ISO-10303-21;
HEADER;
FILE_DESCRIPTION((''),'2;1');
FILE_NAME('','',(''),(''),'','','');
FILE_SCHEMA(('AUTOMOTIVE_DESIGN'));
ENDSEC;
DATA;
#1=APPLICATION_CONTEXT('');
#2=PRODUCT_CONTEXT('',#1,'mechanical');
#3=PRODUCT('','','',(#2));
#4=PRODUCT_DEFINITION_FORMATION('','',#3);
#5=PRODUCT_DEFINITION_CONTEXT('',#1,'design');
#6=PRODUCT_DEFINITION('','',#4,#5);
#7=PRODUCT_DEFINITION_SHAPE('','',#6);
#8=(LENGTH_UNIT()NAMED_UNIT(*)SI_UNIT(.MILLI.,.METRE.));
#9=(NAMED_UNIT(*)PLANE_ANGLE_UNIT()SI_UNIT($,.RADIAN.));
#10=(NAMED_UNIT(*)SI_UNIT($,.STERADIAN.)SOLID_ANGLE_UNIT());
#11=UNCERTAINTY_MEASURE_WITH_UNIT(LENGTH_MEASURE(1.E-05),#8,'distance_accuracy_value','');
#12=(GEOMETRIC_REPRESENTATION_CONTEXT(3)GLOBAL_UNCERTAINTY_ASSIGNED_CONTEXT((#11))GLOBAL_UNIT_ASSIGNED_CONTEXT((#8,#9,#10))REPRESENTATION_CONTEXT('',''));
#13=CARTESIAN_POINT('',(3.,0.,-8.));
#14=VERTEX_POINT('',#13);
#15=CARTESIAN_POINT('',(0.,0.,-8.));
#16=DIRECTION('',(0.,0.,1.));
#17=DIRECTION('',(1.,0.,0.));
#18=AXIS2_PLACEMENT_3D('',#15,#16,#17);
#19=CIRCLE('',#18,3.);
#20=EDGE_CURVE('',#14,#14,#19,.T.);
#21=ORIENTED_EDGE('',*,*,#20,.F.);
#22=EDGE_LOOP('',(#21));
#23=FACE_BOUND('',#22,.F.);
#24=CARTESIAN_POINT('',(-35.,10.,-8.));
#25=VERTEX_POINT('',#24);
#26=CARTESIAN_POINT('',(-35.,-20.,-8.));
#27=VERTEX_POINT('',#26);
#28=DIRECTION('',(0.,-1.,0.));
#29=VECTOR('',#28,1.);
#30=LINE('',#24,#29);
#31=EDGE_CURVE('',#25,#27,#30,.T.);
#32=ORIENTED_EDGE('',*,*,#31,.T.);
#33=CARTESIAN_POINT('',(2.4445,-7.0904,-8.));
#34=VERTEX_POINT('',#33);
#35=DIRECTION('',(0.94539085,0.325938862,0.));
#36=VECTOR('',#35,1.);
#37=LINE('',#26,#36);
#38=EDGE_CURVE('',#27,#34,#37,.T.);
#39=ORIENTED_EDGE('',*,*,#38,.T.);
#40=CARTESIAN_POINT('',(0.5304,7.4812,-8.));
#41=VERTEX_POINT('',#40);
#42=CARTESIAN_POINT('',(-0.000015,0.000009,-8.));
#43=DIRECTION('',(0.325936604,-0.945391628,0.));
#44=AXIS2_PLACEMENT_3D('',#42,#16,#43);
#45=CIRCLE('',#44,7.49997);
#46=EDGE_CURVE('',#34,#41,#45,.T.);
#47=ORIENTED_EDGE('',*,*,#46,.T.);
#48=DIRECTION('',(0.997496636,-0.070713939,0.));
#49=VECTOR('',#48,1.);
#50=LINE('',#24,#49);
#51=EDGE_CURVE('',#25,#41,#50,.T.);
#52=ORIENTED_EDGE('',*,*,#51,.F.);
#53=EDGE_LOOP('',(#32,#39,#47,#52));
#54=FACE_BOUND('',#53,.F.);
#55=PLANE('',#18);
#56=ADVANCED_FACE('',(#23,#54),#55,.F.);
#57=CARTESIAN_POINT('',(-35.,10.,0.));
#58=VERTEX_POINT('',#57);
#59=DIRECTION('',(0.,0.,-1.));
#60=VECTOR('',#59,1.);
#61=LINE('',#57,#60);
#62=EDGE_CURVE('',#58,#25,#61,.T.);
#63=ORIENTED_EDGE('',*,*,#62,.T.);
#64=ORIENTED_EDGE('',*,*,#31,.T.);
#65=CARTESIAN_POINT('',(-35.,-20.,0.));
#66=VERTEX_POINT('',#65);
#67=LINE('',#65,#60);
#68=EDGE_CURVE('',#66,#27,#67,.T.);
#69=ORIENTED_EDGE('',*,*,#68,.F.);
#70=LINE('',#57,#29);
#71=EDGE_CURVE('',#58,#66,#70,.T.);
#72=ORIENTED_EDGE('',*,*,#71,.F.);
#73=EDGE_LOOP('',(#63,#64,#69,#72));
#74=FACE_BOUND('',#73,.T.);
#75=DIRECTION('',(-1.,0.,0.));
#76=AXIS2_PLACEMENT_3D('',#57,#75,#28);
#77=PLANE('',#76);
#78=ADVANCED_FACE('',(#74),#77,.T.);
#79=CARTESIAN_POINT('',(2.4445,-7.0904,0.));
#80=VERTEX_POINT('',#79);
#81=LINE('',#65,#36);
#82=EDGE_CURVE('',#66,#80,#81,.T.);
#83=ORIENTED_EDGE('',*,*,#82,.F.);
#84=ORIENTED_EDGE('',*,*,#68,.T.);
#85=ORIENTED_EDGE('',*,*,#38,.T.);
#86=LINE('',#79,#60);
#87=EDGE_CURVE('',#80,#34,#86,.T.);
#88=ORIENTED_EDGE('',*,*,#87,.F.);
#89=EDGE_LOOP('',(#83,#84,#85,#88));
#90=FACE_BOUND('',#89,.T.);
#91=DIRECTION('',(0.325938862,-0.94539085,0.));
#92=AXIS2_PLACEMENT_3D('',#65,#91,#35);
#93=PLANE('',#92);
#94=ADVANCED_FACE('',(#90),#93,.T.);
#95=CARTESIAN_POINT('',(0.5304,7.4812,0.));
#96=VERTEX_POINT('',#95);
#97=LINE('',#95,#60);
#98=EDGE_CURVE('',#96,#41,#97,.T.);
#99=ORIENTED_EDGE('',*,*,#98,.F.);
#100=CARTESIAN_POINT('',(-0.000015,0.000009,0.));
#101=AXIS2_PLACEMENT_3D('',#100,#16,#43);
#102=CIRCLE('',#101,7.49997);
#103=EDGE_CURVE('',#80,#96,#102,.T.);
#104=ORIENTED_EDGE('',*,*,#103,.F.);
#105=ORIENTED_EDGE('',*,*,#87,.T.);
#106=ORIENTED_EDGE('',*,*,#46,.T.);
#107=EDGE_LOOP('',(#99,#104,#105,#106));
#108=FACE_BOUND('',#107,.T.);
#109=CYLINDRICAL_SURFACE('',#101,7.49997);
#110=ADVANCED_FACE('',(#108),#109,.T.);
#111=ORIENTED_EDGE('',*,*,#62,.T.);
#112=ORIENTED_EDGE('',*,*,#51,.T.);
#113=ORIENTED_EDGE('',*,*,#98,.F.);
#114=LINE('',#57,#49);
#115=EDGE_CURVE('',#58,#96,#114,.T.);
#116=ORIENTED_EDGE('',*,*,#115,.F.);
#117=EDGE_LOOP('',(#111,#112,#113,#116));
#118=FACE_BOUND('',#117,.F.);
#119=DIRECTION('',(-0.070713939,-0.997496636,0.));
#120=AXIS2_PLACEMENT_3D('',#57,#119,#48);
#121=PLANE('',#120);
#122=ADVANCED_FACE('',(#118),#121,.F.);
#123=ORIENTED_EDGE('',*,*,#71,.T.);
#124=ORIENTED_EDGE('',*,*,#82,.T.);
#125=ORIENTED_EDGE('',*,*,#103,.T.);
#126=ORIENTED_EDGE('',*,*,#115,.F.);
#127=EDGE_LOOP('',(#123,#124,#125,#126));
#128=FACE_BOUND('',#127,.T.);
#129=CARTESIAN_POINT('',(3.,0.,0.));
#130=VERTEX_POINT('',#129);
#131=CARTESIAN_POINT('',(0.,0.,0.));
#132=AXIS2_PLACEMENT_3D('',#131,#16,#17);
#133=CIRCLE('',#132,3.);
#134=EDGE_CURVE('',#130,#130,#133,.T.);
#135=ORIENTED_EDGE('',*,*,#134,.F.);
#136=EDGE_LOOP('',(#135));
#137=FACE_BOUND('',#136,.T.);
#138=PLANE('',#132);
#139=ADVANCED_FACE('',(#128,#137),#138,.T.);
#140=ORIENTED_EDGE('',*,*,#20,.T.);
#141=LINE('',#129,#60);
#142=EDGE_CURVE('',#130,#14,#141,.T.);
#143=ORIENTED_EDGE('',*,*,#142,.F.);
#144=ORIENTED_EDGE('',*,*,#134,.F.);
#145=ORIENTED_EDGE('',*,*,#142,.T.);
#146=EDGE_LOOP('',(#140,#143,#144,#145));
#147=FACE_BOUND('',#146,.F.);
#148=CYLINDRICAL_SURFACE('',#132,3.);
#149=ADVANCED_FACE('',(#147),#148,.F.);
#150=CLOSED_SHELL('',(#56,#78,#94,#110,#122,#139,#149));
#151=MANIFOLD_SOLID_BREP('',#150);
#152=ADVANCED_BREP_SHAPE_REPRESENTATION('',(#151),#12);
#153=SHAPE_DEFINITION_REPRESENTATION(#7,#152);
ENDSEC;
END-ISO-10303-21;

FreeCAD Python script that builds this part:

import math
import FreeCAD as App
import Part
import Sketcher

V = App.Vector
Q = App.Units.Quantity

doc = App.newDocument("Part")
body = doc.addObject("PartDesign::Body", "Body")

sketch1 = body.newObject("Sketcher::SketchObject", "Sketch")
sketch1.AttachmentSupport = (doc.getObject("XY_Plane"), [""])
sketch1.MapMode = "FlatFace"
sketch1.addGeometry(Part.LineSegment(V(-35, -20, 0), V(2.4, -7.1, 0)), False)
sketch1.addGeometry(Part.ArcOfCircle(Part.Circle(V(0, 0, 0), V(0, 0, 1), 7.5), math.radians(-71), math.radians(86)), False)
sketch1.addGeometry(Part.LineSegment(V(0.5, 7.5, 0), V(-35, 10, 0)), False)
sketch1.addGeometry(Part.LineSegment(V(-35, 10, 0), V(-35, -20, 0)), False)
sketch1.addGeometry(Part.Circle(V(0, 0, 0), V(0, 0, 1), 3), False)
sketch1.addConstraint(Sketcher.Constraint("Tangent", 0, 2, 1, 1))
sketch1.addConstraint(Sketcher.Constraint("Tangent", 1, 2, 2, 1))
sketch1.addConstraint(Sketcher.Constraint("Coincident", 2, 2, 3, 1))
sketch1.addConstraint(Sketcher.Constraint("Coincident", 3, 2, 0, 1))
sketch1.addConstraint(Sketcher.Constraint("Vertical", 3))
sketch1.addConstraint(Sketcher.Constraint("Coincident", 1, 3, -1, 1))
sketch1.addConstraint(Sketcher.Constraint("Coincident", 4, 3, -1, 1))
sketch1.addConstraint(Sketcher.Constraint("Diameter", 4, Q("6 mm")))
sketch1.addConstraint(Sketcher.Constraint("Radius", 1, Q("7.5 mm")))
sketch1.addConstraint(Sketcher.Constraint("DistanceY", 3, 2, 3, 1, Q("30 mm")))
sketch1.addConstraint(Sketcher.Constraint("DistanceX", 2, 2, -1, 1, Q("35 mm")))
sketch1.addConstraint(Sketcher.Constraint("DistanceY", -1, 1, 2, 2, Q("10 mm")))
pad1 = body.newObject("PartDesign::Pad", "Pad")
pad1.Profile = sketch1
pad1.Length = 8
pad1.Reversed = True

doc.recompute()
